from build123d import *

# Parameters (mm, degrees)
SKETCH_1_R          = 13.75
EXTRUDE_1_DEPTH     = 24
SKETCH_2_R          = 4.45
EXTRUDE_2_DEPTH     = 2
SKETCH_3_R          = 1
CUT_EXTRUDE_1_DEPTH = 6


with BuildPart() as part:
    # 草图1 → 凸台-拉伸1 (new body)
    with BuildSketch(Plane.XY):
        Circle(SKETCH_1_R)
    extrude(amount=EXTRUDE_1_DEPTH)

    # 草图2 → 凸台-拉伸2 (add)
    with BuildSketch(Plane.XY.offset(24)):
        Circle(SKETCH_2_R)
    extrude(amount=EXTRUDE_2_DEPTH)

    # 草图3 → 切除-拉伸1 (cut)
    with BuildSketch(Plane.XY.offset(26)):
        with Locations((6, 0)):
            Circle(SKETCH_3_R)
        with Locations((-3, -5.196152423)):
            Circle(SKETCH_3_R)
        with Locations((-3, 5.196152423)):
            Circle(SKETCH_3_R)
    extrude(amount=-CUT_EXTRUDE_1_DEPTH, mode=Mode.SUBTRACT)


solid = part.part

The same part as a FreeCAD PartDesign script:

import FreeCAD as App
import Part
import Sketcher

doc = App.newDocument("Part")
body = doc.addObject("PartDesign::Body", "Body")

# Sketch on XY plane
sketch1 = body.newObject("Sketcher::SketchObject", "Sketch")
sketch1.AttachmentSupport = (doc.getObject("XY_Plane"), [""])
sketch1.MapMode = "FlatFace"
sketch1.addGeometry(Part.Circle(App.Vector(0, 0, 0), App.Vector(0, 0, 1), 14), False)
sketch1.addConstraint([
    Sketcher.Constraint("Coincident", 0, 3, -1, 1),
    Sketcher.Constraint("Diameter", 0, 27.5),
])
pad1 = body.newObject("PartDesign::Pad", "Pad")
pad1.Profile = sketch1
pad1.Length = 24

# Sketch on XY plane
sketch2 = body.newObject("Sketcher::SketchObject", "Sketch001")
sketch2.AttachmentSupport = (doc.getObject("XY_Plane"), [""])
sketch2.MapMode = "FlatFace"
sketch2.AttachmentOffset = App.Placement(App.Vector(0, 0, 24), App.Rotation())
sketch2.addGeometry(Part.Circle(App.Vector(0, 0, 0), App.Vector(0, 0, 1), 4.5), False)
sketch2.addConstraint([
    Sketcher.Constraint("Coincident", 0, 3, -1, 1),
    Sketcher.Constraint("Diameter", 0, 8.9),
])
pad2 = body.newObject("PartDesign::Pad", "Pad001")
pad2.Profile = sketch2
pad2.Length = 2

# Sketch on XY plane
sketch3 = body.newObject("Sketcher::SketchObject", "Sketch002")
sketch3.AttachmentSupport = (doc.getObject("XY_Plane"), [""])
sketch3.MapMode = "FlatFace"
sketch3.AttachmentOffset = App.Placement(App.Vector(0, 0, 26), App.Rotation())
sketch3.addGeometry([
    Part.Circle(App.Vector(6, 0, 0), App.Vector(0, 0, 1), 1),
    Part.Circle(App.Vector(-3, -5.2, 0), App.Vector(0, 0, 1), 1),
    Part.Circle(App.Vector(-3, 5.2, 0), App.Vector(0, 0, 1), 1),
], False)
sketch3.addConstraint([
    Sketcher.Constraint("Equal", 0, 1),
    Sketcher.Constraint("Equal", 1, 2),
    Sketcher.Constraint("Symmetric", 1, 3, 2, 3, -1),
    Sketcher.Constraint("PointOnObject", 0, 3, -1),
    Sketcher.Constraint("Diameter", 0, 2.0),
    Sketcher.Constraint("DistanceX", -1, 1, 0, 3, 6.0),
    Sketcher.Constraint("DistanceX", 1, 3, -1, 1, 3.0),
    Sketcher.Constraint("DistanceY", 1, 3, -1, 1, 5.196152),
])
pocket1 = body.newObject("PartDesign::Pocket", "Pocket")
pocket1.Profile = sketch3
pocket1.Length = 6

doc.recompute()
